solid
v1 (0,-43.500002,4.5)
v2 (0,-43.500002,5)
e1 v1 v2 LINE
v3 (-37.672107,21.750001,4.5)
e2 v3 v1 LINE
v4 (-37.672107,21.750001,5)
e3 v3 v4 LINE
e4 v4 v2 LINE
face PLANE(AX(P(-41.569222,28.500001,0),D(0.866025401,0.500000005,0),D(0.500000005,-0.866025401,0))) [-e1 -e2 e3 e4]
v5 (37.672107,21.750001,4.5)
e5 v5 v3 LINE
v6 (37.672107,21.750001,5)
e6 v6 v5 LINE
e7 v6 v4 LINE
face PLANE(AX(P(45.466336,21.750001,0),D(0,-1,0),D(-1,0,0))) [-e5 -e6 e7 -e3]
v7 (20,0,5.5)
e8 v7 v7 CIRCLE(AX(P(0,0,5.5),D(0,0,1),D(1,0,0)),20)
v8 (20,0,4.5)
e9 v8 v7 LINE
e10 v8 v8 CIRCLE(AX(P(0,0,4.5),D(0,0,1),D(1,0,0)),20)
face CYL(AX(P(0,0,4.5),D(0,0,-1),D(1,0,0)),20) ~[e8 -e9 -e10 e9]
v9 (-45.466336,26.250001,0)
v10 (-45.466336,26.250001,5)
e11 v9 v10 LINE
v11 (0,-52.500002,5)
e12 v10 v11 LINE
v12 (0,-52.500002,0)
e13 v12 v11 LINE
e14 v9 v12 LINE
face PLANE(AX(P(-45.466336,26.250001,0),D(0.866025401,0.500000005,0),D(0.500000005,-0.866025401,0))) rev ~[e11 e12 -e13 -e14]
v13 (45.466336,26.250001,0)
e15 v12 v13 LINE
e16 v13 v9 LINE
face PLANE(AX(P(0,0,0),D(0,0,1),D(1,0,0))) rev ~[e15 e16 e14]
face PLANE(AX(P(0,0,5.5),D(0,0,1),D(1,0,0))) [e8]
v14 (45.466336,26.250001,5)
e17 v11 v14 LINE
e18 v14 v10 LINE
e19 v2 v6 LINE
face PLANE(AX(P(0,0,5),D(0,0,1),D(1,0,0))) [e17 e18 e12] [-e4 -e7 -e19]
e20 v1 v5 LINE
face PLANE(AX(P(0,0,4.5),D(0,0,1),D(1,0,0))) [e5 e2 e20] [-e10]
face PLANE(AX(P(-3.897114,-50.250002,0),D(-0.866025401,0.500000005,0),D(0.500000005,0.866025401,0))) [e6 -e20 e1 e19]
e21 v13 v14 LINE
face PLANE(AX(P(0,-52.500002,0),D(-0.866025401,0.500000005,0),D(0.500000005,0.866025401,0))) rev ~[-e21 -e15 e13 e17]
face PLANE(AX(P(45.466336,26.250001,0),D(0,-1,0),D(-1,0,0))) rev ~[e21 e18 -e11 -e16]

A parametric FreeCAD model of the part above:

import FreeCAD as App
import Part
import Sketcher
from FreeCAD import Vector
Q = App.Units.Quantity


def faces_at(feature, points):
    """Names of the faces that lie closest to the given points."""
    faces = feature.Shape.Faces
    near = lambda p: min(range(len(faces)), key=lambda i: faces[i].distToShape(Part.Vertex(*p))[0])
    return sorted({f"Face{near(p) + 1}" for p in points})


def add_polygon(sketch, points):
    """Adds a closed chain of lines whose ends are joined by coincident constraints."""
    first, n = sketch.GeometryCount, len(points)
    for a, b in zip(points, points[1:] + points[:1]):
        sketch.addGeometry(Part.LineSegment(App.Vector(*a, 0), App.Vector(*b, 0)), False)
    for i in range(n):
        sketch.addConstraint(Sketcher.Constraint("Coincident", first + i, 2, first + (i + 1) % n, 1))

doc = App.newDocument("Part")
body = doc.addObject("PartDesign::Body", "Body")

# Sketch on XY plane
sketch1 = body.newObject("Sketcher::SketchObject", "Sketch")
sketch1.AttachmentSupport = (doc.getObject("XY_Plane"), [""])
sketch1.MapMode = "FlatFace"
add_polygon(sketch1, [(45, 26), (-45, 26), (0, -53)])  # lines 0-2
sketch1.addConstraint([
    Sketcher.Constraint("Horizontal", 0),
    Sketcher.Constraint("PointOnObject", 1, 2, -2),
    Sketcher.Constraint("Equal", 1, 2),
    Sketcher.Constraint("Angle", 1, Q("-60 deg")),
    Sketcher.Constraint("DistanceY", -1, 1, 0, 2, 26.250001),
    Sketcher.Constraint("DistanceX", 0, 2, 0, 1, 90.932672),
])
pad1 = body.newObject("PartDesign::Pad", "Pad")
pad1.Profile = sketch1
pad1.Length = 5

# Sketch on XY plane
sketch2 = body.newObject("Sketcher::SketchObject", "Sketch001")
sketch2.AttachmentSupport = (doc.getObject("XY_Plane"), [""])
sketch2.MapMode = "FlatFace"
sketch2.addGeometry(Part.Circle(Vector(0, 0, 0), Vector(0, 0, 1), 20), False)
sketch2.addConstraint([
    Sketcher.Constraint("Coincident", 0, 3, -1, 1),
    Sketcher.Constraint("Diameter", 0, 41.0),
])
pad2 = body.newObject("PartDesign::Pad", "Pad001")
pad2.Profile = sketch2
pad2.Length = 5
doc.recompute()

thickness = body.newObject("PartDesign::Thickness", "Thickness")
thickness.Base = (pad2, faces_at(pad2, [(0, -13.125, 5)]))
thickness.Value = 4.5
thickness.Reversed = True
thickness.Join = "Arc"

# Sketch on XY plane
sketch3 = body.newObject("Sketcher::SketchObject", "Sketch002")
sketch3.AttachmentSupport = (doc.getObject("XY_Plane"), [""])
sketch3.MapMode = "FlatFace"
sketch3.AttachmentOffset = App.Placement(Vector(0, 0, 4.5), App.Rotation())
sketch3.addGeometry(Part.Circle(Vector(0, 0, 0), Vector(0, 0, 1), 20), False)
sketch3.addConstraint([
    Sketcher.Constraint("Coincident", 0, 3, -1, 1),
    Sketcher.Constraint("Diameter", 0, 40.0),
])
pad3 = body.newObject("PartDesign::Pad", "Pad002")
pad3.Profile = sketch3
pad3.Length = 1

doc.recompute()
